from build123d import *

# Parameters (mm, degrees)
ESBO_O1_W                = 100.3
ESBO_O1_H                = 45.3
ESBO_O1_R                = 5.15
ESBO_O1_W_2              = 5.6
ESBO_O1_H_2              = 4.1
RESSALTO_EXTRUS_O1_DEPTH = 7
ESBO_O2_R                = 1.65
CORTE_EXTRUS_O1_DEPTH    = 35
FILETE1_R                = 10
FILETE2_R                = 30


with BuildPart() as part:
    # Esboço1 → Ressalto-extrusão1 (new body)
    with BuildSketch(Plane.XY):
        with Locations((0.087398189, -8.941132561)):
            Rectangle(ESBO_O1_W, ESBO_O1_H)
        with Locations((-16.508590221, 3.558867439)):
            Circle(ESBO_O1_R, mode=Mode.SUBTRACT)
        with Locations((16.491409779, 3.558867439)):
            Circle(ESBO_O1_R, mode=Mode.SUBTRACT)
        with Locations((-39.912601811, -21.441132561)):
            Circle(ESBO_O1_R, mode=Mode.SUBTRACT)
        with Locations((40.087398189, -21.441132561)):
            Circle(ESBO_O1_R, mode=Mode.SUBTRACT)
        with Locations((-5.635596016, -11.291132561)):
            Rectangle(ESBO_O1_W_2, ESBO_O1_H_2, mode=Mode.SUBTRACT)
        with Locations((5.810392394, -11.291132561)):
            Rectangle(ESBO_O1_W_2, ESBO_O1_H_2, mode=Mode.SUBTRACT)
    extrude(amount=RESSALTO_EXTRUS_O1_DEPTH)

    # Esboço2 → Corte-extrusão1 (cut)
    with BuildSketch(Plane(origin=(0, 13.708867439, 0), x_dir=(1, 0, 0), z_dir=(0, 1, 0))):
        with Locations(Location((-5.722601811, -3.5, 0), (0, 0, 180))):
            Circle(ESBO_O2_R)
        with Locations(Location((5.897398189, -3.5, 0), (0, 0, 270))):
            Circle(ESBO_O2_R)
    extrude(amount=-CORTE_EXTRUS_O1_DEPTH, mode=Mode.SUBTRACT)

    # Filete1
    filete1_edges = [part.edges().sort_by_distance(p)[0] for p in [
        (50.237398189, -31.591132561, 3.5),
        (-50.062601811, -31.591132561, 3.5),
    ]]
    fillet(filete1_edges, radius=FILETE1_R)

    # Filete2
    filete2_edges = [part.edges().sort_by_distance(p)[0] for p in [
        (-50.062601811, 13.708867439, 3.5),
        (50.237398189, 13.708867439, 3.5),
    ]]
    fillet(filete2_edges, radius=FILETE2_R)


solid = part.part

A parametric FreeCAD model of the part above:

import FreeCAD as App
import Part
import Sketcher
Q = App.Units.Quantity


def edges_at(feature, points):
    """Names of the edges that pass closest to the given points."""
    edges = feature.Shape.Edges
    near = lambda p: min(range(len(edges)), key=lambda i: edges[i].distToShape(Part.Vertex(*p))[0])
    return sorted({f"Edge{near(p) + 1}" for p in points})

doc = App.newDocument("Part")
body = doc.addObject("PartDesign::Body", "Body")

# Sketch on XY plane
sketch1 = doc.addObject("Sketcher::SketchObject", "Sketch")
body.addObject(sketch1)
sketch1.AttachmentSupport = (doc.XY_Plane, [""])
sketch1.MapMode = "FlatFace"
sketch1.addGeometry([
    Part.LineSegment(App.Vector(-50.062602, 13.708867, 0), App.Vector(-50.062602, -31.591133, 0)),  # 0
    Part.LineSegment(App.Vector(-50.062602, -31.591133, 0), App.Vector(50.237398, -31.591133, 0)),  # 1
    Part.LineSegment(App.Vector(50.237398, -31.591133, 0), App.Vector(50.237398, 13.708867, 0)),  # 2
    Part.LineSegment(App.Vector(50.237398, 13.708867, 0), App.Vector(-50.062602, 13.708867, 0)),  # 3
    Part.Circle(App.Vector(-39.912602, -21.441133, 0), App.Vector(0, 0, 1), 5.15),  # 4
    Part.LineSegment(App.Vector(-2.835596, -13.341133, 0), App.Vector(-8.435596, -13.341133, 0)),  # 5
    Part.LineSegment(App.Vector(-8.435596, -13.341133, 0), App.Vector(-8.435596, -9.241133, 0)),  # 6
    Part.LineSegment(App.Vector(-8.435596, -9.241133, 0), App.Vector(-2.835596, -9.241133, 0)),  # 7
    Part.LineSegment(App.Vector(-2.835596, -9.241133, 0), App.Vector(-2.835596, -13.341133, 0)),  # 8
    Part.Circle(App.Vector(40.087398, -21.441133, 0), App.Vector(0, 0, 1), 5.15),  # 9
    Part.LineSegment(App.Vector(8.610392, -13.341133, 0), App.Vector(3.010392, -13.341133, 0)),  # 10
    Part.LineSegment(App.Vector(3.010392, -13.341133, 0), App.Vector(3.010392, -9.241133, 0)),  # 11
    Part.LineSegment(App.Vector(3.010392, -9.241133, 0), App.Vector(8.610392, -9.241133, 0)),  # 12
    Part.LineSegment(App.Vector(8.610392, -9.241133, 0), App.Vector(8.610392, -13.341133, 0)),  # 13
    Part.Circle(App.Vector(-16.50859, 3.558867, 0), App.Vector(0, 0, 1), 5.15),  # 14
    Part.Circle(App.Vector(16.49141, 3.558867, 0), App.Vector(0, 0, 1), 5.15),  # 15
], False)
sketch1.addConstraint([
    Sketcher.Constraint("Coincident", 0, 2, 1, 1),
    Sketcher.Constraint("Coincident", 1, 2, 2, 1),
    Sketcher.Constraint("Coincident", 2, 2, 3, 1),
    Sketcher.Constraint("Coincident", 3, 2, 0, 1),
    Sketcher.Constraint("Coincident", 5, 2, 6, 1),
    Sketcher.Constraint("Coincident", 6, 2, 7, 1),
    Sketcher.Constraint("Coincident", 7, 2, 8, 1),
    Sketcher.Constraint("Coincident", 8, 2, 5, 1),
    Sketcher.Constraint("Coincident", 10, 2, 11, 1),
    Sketcher.Constraint("Coincident", 11, 2, 12, 1),
    Sketcher.Constraint("Coincident", 12, 2, 13, 1),
    Sketcher.Constraint("Coincident", 13, 2, 10, 1),
    Sketcher.Constraint("Vertical", 0),
    Sketcher.Constraint("Horizontal", 1),
    Sketcher.Constraint("Vertical", 2),
    Sketcher.Constraint("Horizontal", 3),
    Sketcher.Constraint("Horizontal", 5),
    Sketcher.Constraint("Vertical", 6),
    Sketcher.Constraint("Horizontal", 7),
    Sketcher.Constraint("Vertical", 8),
    Sketcher.Constraint("Horizontal", 10),
    Sketcher.Constraint("Vertical", 11),
    Sketcher.Constraint("Horizontal", 12),
    Sketcher.Constraint("Vertical", 13),
    Sketcher.Constraint("Equal", 4, 9),
    Sketcher.Constraint("Equal", 9, 14),
    Sketcher.Constraint("Equal", 14, 15),
    Sketcher.Constraint("Horizontal", 4, 3, 9, 3),
    Sketcher.Constraint("Horizontal", 14, 3, 15, 3),
    Sketcher.Constraint("Horizontal", 8, 2, 10, 2),
    Sketcher.Constraint("Horizontal", 7, 2, 11, 2),
    Sketcher.Constraint("Equal", 7, 10),
    Sketcher.Constraint("Diameter", 4, Q("10.3 mm")),
    Sketcher.Constraint("DistanceX", 1, 1, 1, 2, Q("100.3 mm")),
    Sketcher.Constraint("DistanceX", 5, 2, 5, 1, Q("5.6 mm")),
    Sketcher.Constraint("DistanceY", 0, 2, 0, 1, Q("45.3 mm")),
    Sketcher.Constraint("DistanceY", 6, 1, 6, 2, Q("4.1 mm")),
    Sketcher.Constraint("DistanceX", 4, 3, 9, 3, Q("80 mm")),
    Sketcher.Constraint("DistanceY", 4, 3, 14, 3, Q("25 mm")),
    Sketcher.Constraint("DistanceX", 14, 3, 15, 3, Q("33 mm")),
    Sketcher.Constraint("DistanceY", 5, 2, 14, 3, Q("16.9 mm")),
    Sketcher.Constraint("DistanceX", 0, 2, 4, 3, Q("10.15 mm")),
    Sketcher.Constraint("DistanceY", 0, 2, 4, 3, Q("10.15 mm")),
    Sketcher.Constraint("DistanceX", 4, 3, -1, 1, Q("39.912602 mm")),
    Sketcher.Constraint("DistanceX", 14, 3, -1, 1, Q("16.50859 mm")),
    Sketcher.Constraint("DistanceX", 8, 2, 10, 2, Q("5.845988 mm")),
    Sketcher.Constraint("DistanceY", 4, 3, -1, 1, Q("21.441133 mm")),
    Sketcher.Constraint("DistanceX", 5, 2, -1, 1, Q("8.435596 mm")),
])
pad1 = doc.addObject("PartDesign::Pad", "Pad")
body.addObject(pad1)
pad1.Profile = sketch1
pad1.Length = 7

# Sketch on XZ plane
sketch2 = doc.addObject("Sketcher::SketchObject", "Sketch001")
body.addObject(sketch2)
sketch2.AttachmentSupport = (doc.XZ_Plane, [""])
sketch2.MapMode = "FlatFace"
sketch2.AttachmentOffset = App.Placement(App.Vector(0, 0, -13.708867), App.Rotation())
sketch2.addGeometry([
    Part.Circle(App.Vector(-5.722602, 3.5, 0), App.Vector(0, 0, 1), 1.65),
    Part.Circle(App.Vector(5.897398, 3.5, 0), App.Vector(0, 0, 1), 1.65),
], False)
sketch2.addConstraint([
    Sketcher.Constraint("Equal", 0, 1),
    Sketcher.Constraint("Horizontal", 0, 3, 1, 3),
    Sketcher.Constraint("Diameter", 0, Q("3.3 mm")),
    Sketcher.Constraint("DistanceY", -1, 1, 0, 3, Q("3.5 mm")),
    Sketcher.Constraint("DistanceX", 0, 3, 1, 3, Q("11.62 mm")),
    Sketcher.Constraint("DistanceX", 0, 3, -1, 1, Q("5.722602 mm")),
])
pocket1 = doc.addObject("PartDesign::Pocket", "Pocket")
body.addObject(pocket1)
pocket1.Profile = sketch2
pocket1.Length = 35
pocket1.Reversed = True
doc.recompute()

fillet = doc.addObject("PartDesign::Fillet", "Fillet")
body.addObject(fillet)
fillet.Base = (pocket1, edges_at(pocket1, [(50.237, -31.591, 3.5), (-50.063, -31.591, 3.5)]))
fillet.Radius = 10
doc.recompute()

fillet2 = doc.addObject("PartDesign::Fillet", "Fillet001")
body.addObject(fillet2)
fillet2.Base = (fillet, edges_at(fillet, [(-50.063, 13.709, 3.5), (50.237, 13.709, 3.5)]))
fillet2.Radius = 30

doc.recompute()
